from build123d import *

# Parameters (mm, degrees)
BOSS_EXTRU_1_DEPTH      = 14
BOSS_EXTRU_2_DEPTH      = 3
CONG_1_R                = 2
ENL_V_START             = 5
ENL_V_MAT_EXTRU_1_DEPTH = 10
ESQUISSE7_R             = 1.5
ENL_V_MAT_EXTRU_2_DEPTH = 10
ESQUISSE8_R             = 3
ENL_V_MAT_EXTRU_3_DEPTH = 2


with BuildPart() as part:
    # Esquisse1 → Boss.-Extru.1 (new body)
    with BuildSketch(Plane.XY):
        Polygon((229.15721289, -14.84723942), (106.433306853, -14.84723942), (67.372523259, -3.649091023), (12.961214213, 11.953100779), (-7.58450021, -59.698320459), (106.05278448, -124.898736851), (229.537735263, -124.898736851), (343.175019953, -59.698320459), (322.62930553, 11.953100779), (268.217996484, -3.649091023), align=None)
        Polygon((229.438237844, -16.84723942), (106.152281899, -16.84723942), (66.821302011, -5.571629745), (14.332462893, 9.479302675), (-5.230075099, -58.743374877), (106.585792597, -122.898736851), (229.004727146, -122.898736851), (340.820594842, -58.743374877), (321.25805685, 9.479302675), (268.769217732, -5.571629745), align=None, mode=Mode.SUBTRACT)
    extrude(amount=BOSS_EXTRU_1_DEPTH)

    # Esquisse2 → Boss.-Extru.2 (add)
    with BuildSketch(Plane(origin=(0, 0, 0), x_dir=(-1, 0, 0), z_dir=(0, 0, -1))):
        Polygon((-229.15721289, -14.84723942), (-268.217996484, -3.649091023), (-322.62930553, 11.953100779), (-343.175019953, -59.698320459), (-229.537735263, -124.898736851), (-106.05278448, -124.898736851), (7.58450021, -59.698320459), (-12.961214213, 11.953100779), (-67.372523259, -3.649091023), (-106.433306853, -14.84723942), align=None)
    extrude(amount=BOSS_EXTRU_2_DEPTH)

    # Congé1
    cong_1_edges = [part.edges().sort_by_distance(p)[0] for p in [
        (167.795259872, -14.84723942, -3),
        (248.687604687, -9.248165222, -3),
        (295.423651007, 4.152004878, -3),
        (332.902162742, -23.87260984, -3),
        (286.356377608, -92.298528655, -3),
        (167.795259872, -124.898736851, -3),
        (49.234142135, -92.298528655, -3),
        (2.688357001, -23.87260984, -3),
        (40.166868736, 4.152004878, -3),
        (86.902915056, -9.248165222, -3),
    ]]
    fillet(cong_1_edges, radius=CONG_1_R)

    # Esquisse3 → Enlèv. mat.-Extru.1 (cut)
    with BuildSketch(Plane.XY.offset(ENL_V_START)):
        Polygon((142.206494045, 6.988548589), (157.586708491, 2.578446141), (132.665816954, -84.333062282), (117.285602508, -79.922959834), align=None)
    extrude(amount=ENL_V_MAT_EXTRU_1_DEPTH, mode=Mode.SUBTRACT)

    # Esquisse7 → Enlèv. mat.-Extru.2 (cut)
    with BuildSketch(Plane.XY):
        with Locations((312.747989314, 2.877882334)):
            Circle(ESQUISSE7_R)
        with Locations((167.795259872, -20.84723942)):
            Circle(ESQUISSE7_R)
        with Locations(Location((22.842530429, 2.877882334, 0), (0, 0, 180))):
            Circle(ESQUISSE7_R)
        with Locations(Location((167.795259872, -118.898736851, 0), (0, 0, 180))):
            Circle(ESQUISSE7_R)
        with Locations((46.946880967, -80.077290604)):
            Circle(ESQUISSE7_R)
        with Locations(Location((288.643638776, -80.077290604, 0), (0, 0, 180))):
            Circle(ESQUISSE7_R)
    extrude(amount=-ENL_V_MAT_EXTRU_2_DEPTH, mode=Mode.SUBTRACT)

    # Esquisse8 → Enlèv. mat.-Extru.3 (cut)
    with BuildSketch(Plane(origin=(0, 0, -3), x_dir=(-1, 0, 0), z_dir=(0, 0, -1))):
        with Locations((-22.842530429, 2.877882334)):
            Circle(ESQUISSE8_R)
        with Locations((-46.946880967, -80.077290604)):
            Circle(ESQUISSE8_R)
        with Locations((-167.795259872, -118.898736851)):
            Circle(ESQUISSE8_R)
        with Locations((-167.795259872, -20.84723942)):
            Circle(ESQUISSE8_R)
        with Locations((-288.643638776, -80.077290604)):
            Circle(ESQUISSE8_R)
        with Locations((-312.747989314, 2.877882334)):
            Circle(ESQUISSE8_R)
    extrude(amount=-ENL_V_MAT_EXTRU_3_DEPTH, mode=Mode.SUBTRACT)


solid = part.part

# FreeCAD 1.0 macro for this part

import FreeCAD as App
import Part
import Sketcher

V = App.Vector
Q = App.Units.Quantity


def edges_at(feature, points):
    """Names of the edges that pass closest to the given points."""
    edges = feature.Shape.Edges
    near = lambda p: min(range(len(edges)), key=lambda i: edges[i].distToShape(Part.Vertex(*p))[0])
    return sorted({f"Edge{near(p) + 1}" for p in points})


def add_polygon(sketch, points):
    """Adds a closed chain of lines whose ends are joined by coincident constraints."""
    first, n = sketch.GeometryCount, len(points)
    for a, b in zip(points, points[1:] + points[:1]):
        sketch.addGeometry(Part.LineSegment(App.Vector(*a, 0), App.Vector(*b, 0)), False)
    for i in range(n):
        sketch.addConstraint(Sketcher.Constraint("Coincident", first + i, 2, first + (i + 1) % n, 1))

doc = App.newDocument("Part")
body = doc.addObject("PartDesign::Body", "Body")

sketch1 = body.newObject("Sketcher::SketchObject", "Sketch")
sketch1.AttachmentSupport = (doc.getObject("XY_Plane"), [""])
sketch1.MapMode = "FlatFace"
add_polygon(sketch1, [(229, -15), (106, -15), (67, -4), (13, 12), (-8, -60), (106, -125), (230, -125), (343, -60), (323, 12), (268, -4)])
add_polygon(sketch1, [(106, -17), (229, -17), (269, -6), (321, 9), (341, -59), (229, -123), (107, -123), (-5, -59), (14, 9), (67, -6)])
sketch1.addConstraint(Sketcher.Constraint("Horizontal", 0))
sketch1.addConstraint(Sketcher.Constraint("Horizontal", 5))
sketch1.addConstraint(Sketcher.Constraint("Horizontal", 10))
sketch1.addConstraint(Sketcher.Constraint("Horizontal", 15))
sketch1.addConstraint(Sketcher.Constraint("Perpendicular", 2, 3))
sketch1.addConstraint(Sketcher.Constraint("Perpendicular", 7, 8))
sketch1.addConstraint(Sketcher.Constraint("Parallel", 9, 11))
sketch1.addConstraint(Sketcher.Constraint("Parallel", 8, 12))
sketch1.addConstraint(Sketcher.Constraint("Perpendicular", 12, 13))
sketch1.addConstraint(Sketcher.Constraint("Parallel", 6, 14))
sketch1.addConstraint(Sketcher.Constraint("Parallel", 4, 16))
sketch1.addConstraint(Sketcher.Constraint("Parallel", 3, 17))
sketch1.addConstraint(Sketcher.Constraint("Perpendicular", 17, 18))
sketch1.addConstraint(Sketcher.Constraint("Parallel", 1, 19))
sketch1.addConstraint(Sketcher.Constraint("Horizontal", 3, 2, 6, 2))
sketch1.addConstraint(Sketcher.Constraint("Horizontal", 2, 2, 7, 2))
sketch1.addConstraint(Sketcher.Constraint("Horizontal", 1, 2, 8, 2))
sketch1.addConstraint(Sketcher.Constraint("Horizontal", 13, 2, 16, 2))
sketch1.addConstraint(Sketcher.Constraint("Horizontal", 12, 2, 17, 2))
sketch1.addConstraint(Sketcher.Constraint("Horizontal", 11, 2, 18, 2))
sketch1.addConstraint(Sketcher.Constraint("Equal", 4, 6))
sketch1.addConstraint(Sketcher.Constraint("Equal", 3, 7))
sketch1.addConstraint(Sketcher.Constraint("Equal", 1, 9))
sketch1.addConstraint(Sketcher.Constraint("Angle", 2, Q("164 deg")))
sketch1.addConstraint(Sketcher.Constraint("DistanceY", 10, 2, 9, 2, Q("2 mm")))
sketch1.addConstraint(Sketcher.Constraint("DistanceY", 5, 2, 14, 2, Q("2 mm")))
sketch1.addConstraint(Sketcher.Constraint("DistanceX", 0, 2, 7, 2, Q("216.195999 mm")))
sketch1.addConstraint(Sketcher.Constraint("DistanceX", 5, 1, 5, 2, Q("123.484951 mm")))
sketch1.addConstraint(Sketcher.Constraint("DistanceY", -1, 1, 2, 2, Q("11.953101 mm")))
sketch1.addConstraint(Sketcher.Constraint("DistanceX", 3, 2, -1, 1, Q("7.5845 mm")))
sketch1.addConstraint(Sketcher.Constraint("DistanceY", 12, 2, 7, 2, Q("2.473798 mm")))
sketch1.addConstraint(Sketcher.Constraint("DistanceX", 8, 2, 13, 2, Q("72.602598 mm")))
sketch1.addConstraint(Sketcher.Constraint("DistanceX", 16, 2, 1, 2, Q("72.602598 mm")))
sketch1.addConstraint(Sketcher.Constraint("Distance", 4, Q("131.01346 mm")))
sketch1.addConstraint(Sketcher.Constraint("Distance", 12, Q("54.60411 mm")))
sketch1.addConstraint(Sketcher.Constraint("DistanceX", 0, 2, 0, 1, Q("122.723906 mm")))
sketch1.addConstraint(Sketcher.Constraint("DistanceX", 10, 1, 10, 2, Q("123.285956 mm")))
sketch1.addConstraint(Sketcher.Constraint("DistanceX", 15, 2, 15, 1, Q("122.418935 mm")))
sketch1.addConstraint(Sketcher.Constraint("DistanceY", 0, 2, -1, 1, Q("14.847239 mm")))
sketch1.addConstraint(Sketcher.Constraint("DistanceY", 1, 2, -1, 1, Q("3.649091 mm")))
pad1 = body.newObject("PartDesign::Pad", "Pad")
pad1.Profile = sketch1
pad1.Length = 14

sketch2 = body.newObject("Sketcher::SketchObject", "Sketch001")
sketch2.AttachmentSupport = (doc.getObject("XY_Plane"), [""])
sketch2.MapMode = "FlatFace"
add_polygon(sketch2, [(229, -15), (268, -4), (323, 12), (343, -60), (230, -125), (106, -125), (-8, -60), (13, 12), (67, -4), (106, -15)])
sketch2.addConstraint(Sketcher.Constraint("Horizontal", 4))
sketch2.addConstraint(Sketcher.Constraint("Horizontal", 9))
sketch2.addConstraint(Sketcher.Constraint("Perpendicular", 1, 2))
sketch2.addConstraint(Sketcher.Constraint("Perpendicular", 6, 7))
sketch2.addConstraint(Sketcher.Constraint("Horizontal", 2, 2, 5, 2))
sketch2.addConstraint(Sketcher.Constraint("Horizontal", 1, 2, 6, 2))
sketch2.addConstraint(Sketcher.Constraint("Horizontal", 0, 2, 7, 2))
sketch2.addConstraint(Sketcher.Constraint("Equal", 3, 5))
sketch2.addConstraint(Sketcher.Constraint("Equal", 2, 6))
sketch2.addConstraint(Sketcher.Constraint("Equal", 0, 8))
sketch2.addConstraint(Sketcher.Constraint("Angle", 1, Q("16 deg")))
sketch2.addConstraint(Sketcher.Constraint("DistanceX", 4, 2, 4, 1, Q("123.484951 mm")))
sketch2.addConstraint(Sketcher.Constraint("DistanceY", -1, 1, 1, 2, Q("11.953101 mm")))
sketch2.addConstraint(Sketcher.Constraint("DistanceX", 5, 2, -1, 1, Q("7.5845 mm")))
sketch2.addConstraint(Sketcher.Constraint("Distance", 3, Q("131.01346 mm")))
sketch2.addConstraint(Sketcher.Constraint("DistanceX", 9, 1, 9, 2, Q("122.723906 mm")))
sketch2.addConstraint(Sketcher.Constraint("DistanceY", 0, 2, -1, 1, Q("3.649091 mm")))
sketch2.addConstraint(Sketcher.Constraint("DistanceX", -1, 1, 2, 2, Q("343.17502 mm")))
sketch2.addConstraint(Sketcher.Constraint("DistanceY", 2, 2, -1, 1, Q("59.69832 mm")))
sketch2.addConstraint(Sketcher.Constraint("DistanceY", 8, 2, -1, 1, Q("14.847239 mm")))
pad2 = body.newObject("PartDesign::Pad", "Pad001")
pad2.Profile = sketch2
pad2.Length = 3
pad2.Reversed = True
doc.recompute()

fillet = body.newObject("PartDesign::Fillet", "Fillet")
fillet.Base = (pad2, edges_at(pad2, [
    (167.795, -14.847, -3),
    (248.688, -9.248, -3),
    (295.424, 4.152, -3),
    (332.902, -23.873, -3),
    (286.356, -92.299, -3),
    (167.795, -124.899, -3),
    (49.234, -92.299, -3),
    (2.688, -23.873, -3),
    (40.167, 4.152, -3),
    (86.903, -9.248, -3),
]))
fillet.Radius = 2

sketch3 = body.newObject("Sketcher::SketchObject", "Sketch002")
sketch3.AttachmentSupport = (doc.getObject("XY_Plane"), [""])
sketch3.MapMode = "FlatFace"
sketch3.AttachmentOffset = App.Placement(V(0, 0, 5), App.Rotation())
add_polygon(sketch3, [(158, 3), (142, 7), (117, -80), (133, -84)])
sketch3.addConstraint(Sketcher.Constraint("Perpendicular", 0, 1))
sketch3.addConstraint(Sketcher.Constraint("Perpendicular", 1, 2))
sketch3.addConstraint(Sketcher.Constraint("Perpendicular", 2, 3))
sketch3.addConstraint(Sketcher.Constraint("Distance", 0, Q("16 mm")))
sketch3.addConstraint(Sketcher.Constraint("DistanceY", -1, 1, 0, 2, Q("6.988549 mm")))
sketch3.addConstraint(Sketcher.Constraint("DistanceY", 1, 2, -1, 1, Q("79.92296 mm")))
sketch3.addConstraint(Sketcher.Constraint("DistanceX", -1, 1, 3, 2, Q("157.586708 mm")))
sketch3.addConstraint(Sketcher.Constraint("DistanceX", 1, 2, 0, 2, Q("24.920892 mm")))
pocket1 = body.newObject("PartDesign::Pocket", "Pocket")
pocket1.Profile = sketch3
pocket1.Length = 10
pocket1.Reversed = True

sketch4 = body.newObject("Sketcher::SketchObject", "Sketch003")
sketch4.AttachmentSupport = (doc.getObject("XY_Plane"), [""])
sketch4.MapMode = "FlatFace"
sketch4.addGeometry(Part.Circle(V(312.7, 2.9, 0), V(0, 0, 1), 1.5), False)
sketch4.addGeometry(Part.Circle(V(167.8, -20.8, 0), V(0, 0, 1), 1.5), False)
sketch4.addGeometry(Part.Circle(V(22.8, 2.9, 0), V(0, 0, 1), 1.5), False)
sketch4.addGeometry(Part.Circle(V(167.8, -118.9, 0), V(0, 0, 1), 1.5), False)
sketch4.addGeometry(Part.Circle(V(46.9, -80.1, 0), V(0, 0, 1), 1.5), False)
sketch4.addGeometry(Part.Circle(V(288.6, -80.1, 0), V(0, 0, 1), 1.5), False)
sketch4.addConstraint(Sketcher.Constraint("Equal", 0, 1))
sketch4.addConstraint(Sketcher.Constraint("Equal", 1, 2))
sketch4.addConstraint(Sketcher.Constraint("Equal", 2, 3))
sketch4.addConstraint(Sketcher.Constraint("Equal", 3, 4))
sketch4.addConstraint(Sketcher.Constraint("Equal", 4, 5))
sketch4.addConstraint(Sketcher.Constraint("Horizontal", 0, 3, 2, 3))
sketch4.addConstraint(Sketcher.Constraint("Horizontal", 4, 3, 5, 3))
sketch4.addConstraint(Sketcher.Constraint("Vertical", 1, 3, 3, 3))
sketch4.addConstraint(Sketcher.Constraint("Diameter", 0, Q("3 mm")))
sketch4.addConstraint(Sketcher.Constraint("DistanceX", -1, 1, 0, 3, Q("312.747989 mm")))
sketch4.addConstraint(Sketcher.Constraint("DistanceX", -1, 1, 1, 3, Q("167.79526 mm")))
sketch4.addConstraint(Sketcher.Constraint("DistanceY", 1, 3, -1, 1, Q("20.847239 mm")))
sketch4.addConstraint(Sketcher.Constraint("DistanceX", -1, 1, 2, 3, Q("22.84253 mm")))
sketch4.addConstraint(Sketcher.Constraint("DistanceX", -1, 1, 4, 3, Q("46.946881 mm")))
sketch4.addConstraint(Sketcher.Constraint("DistanceY", 4, 3, -1, 1, Q("80.077291 mm")))
sketch4.addConstraint(Sketcher.Constraint("DistanceX", -1, 1, 5, 3, Q("288.643639 mm")))
sketch4.addConstraint(Sketcher.Constraint("DistanceY", 1, 3, 0, 3, Q("23.725122 mm")))
sketch4.addConstraint(Sketcher.Constraint("DistanceY", 3, 3, 0, 3, Q("121.776619 mm")))
pocket2 = body.newObject("PartDesign::Pocket", "Pocket001")
pocket2.Profile = sketch4
pocket2.Length = 10

sketch5 = body.newObject("Sketcher::SketchObject", "Sketch004")
sketch5.AttachmentSupport = (doc.getObject("XY_Plane"), [""])
sketch5.MapMode = "FlatFace"
sketch5.AttachmentOffset = App.Placement(V(0, 0, -3), App.Rotation())
sketch5.addGeometry(Part.Circle(V(22.8, 2.9, 0), V(0, 0, 1), 3), False)
sketch5.addGeometry(Part.Circle(V(46.9, -80.1, 0), V(0, 0, 1), 3), False)
sketch5.addGeometry(Part.Circle(V(167.8, -118.9, 0), V(0, 0, 1), 3), False)
sketch5.addGeometry(Part.Circle(V(167.8, -20.8, 0), V(0, 0, 1), 3), False)
sketch5.addGeometry(Part.Circle(V(288.6, -80.1, 0), V(0, 0, 1), 3), False)
sketch5.addGeometry(Part.Circle(V(312.7, 2.9, 0), V(0, 0, 1), 3), False)
sketch5.addConstraint(Sketcher.Constraint("Equal", 0, 1))
sketch5.addConstraint(Sketcher.Constraint("Equal", 1, 2))
sketch5.addConstraint(Sketcher.Constraint("Equal", 2, 3))
sketch5.addConstraint(Sketcher.Constraint("Equal", 3, 4))
sketch5.addConstraint(Sketcher.Constraint("Equal", 4, 5))
sketch5.addConstraint(Sketcher.Constraint("Horizontal", 1, 3, 4, 3))
sketch5.addConstraint(Sketcher.Constraint("Horizontal", 0, 3, 5, 3))
sketch5.addConstraint(Sketcher.Constraint("Vertical", 2, 3, 3, 3))
sketch5.addConstraint(Sketcher.Constraint("Diameter", 0, Q("6 mm")))
sketch5.addConstraint(Sketcher.Constraint("DistanceX", -1, 1, 0, 3, Q("22.84253 mm")))
sketch5.addConstraint(Sketcher.Constraint("DistanceX", -1, 1, 1, 3, Q("46.946881 mm")))
sketch5.addConstraint(Sketcher.Constraint("DistanceY", 1, 3, -1, 1, Q("80.077291 mm")))
sketch5.addConstraint(Sketcher.Constraint("DistanceX", -1, 1, 2, 3, Q("167.79526 mm")))
sketch5.addConstraint(Sketcher.Constraint("DistanceY", 3, 3, -1, 1, Q("20.847239 mm")))
sketch5.addConstraint(Sketcher.Constraint("DistanceX", -1, 1, 4, 3, Q("288.643639 mm")))
sketch5.addConstraint(Sketcher.Constraint("DistanceX", -1, 1, 5, 3, Q("312.747989 mm")))
sketch5.addConstraint(Sketcher.Constraint("DistanceY", 2, 3, 0, 3, Q("121.776619 mm")))
sketch5.addConstraint(Sketcher.Constraint("DistanceY", 3, 3, 0, 3, Q("23.725122 mm")))
pocket3 = body.newObject("PartDesign::Pocket", "Pocket002")
pocket3.Profile = sketch5
pocket3.Length = 2
pocket3.Reversed = True

doc.recompute()
